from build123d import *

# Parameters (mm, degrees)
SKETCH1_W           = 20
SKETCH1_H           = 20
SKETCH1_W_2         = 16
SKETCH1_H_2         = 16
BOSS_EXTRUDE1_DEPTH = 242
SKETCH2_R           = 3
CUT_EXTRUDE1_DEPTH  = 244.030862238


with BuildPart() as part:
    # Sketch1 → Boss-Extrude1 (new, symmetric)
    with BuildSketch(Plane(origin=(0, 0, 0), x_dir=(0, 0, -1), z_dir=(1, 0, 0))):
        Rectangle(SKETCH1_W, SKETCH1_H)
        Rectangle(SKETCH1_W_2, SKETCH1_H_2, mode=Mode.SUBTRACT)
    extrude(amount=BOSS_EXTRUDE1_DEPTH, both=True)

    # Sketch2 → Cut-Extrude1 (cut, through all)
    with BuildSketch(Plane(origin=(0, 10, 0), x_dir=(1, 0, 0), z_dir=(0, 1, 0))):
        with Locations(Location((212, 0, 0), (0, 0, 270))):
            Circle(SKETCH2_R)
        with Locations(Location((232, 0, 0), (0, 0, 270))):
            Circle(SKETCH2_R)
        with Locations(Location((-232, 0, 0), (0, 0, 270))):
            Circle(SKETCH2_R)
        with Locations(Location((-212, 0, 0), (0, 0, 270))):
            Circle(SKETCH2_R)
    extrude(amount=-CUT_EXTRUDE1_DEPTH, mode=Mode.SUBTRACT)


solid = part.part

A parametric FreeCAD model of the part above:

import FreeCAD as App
import Part
import Sketcher
from FreeCAD import Vector
Q = App.Units.Quantity


def add_polygon(sketch, points):
    """Adds a closed chain of lines whose ends are joined by coincident constraints."""
    first, n = sketch.GeometryCount, len(points)
    for a, b in zip(points, points[1:] + points[:1]):
        sketch.addGeometry(Part.LineSegment(App.Vector(*a, 0), App.Vector(*b, 0)), False)
    for i in range(n):
        sketch.addConstraint(Sketcher.Constraint("Coincident", first + i, 2, first + (i + 1) % n, 1))

doc = App.newDocument("Part")
body = doc.addObject("PartDesign::Body", "Body")

sketch1 = doc.addObject("Sketcher::SketchObject", "Sketch")
body.addObject(sketch1)
sketch1.AttachmentSupport = (doc.YZ_Plane, [""])
sketch1.MapMode = "FlatFace"
add_polygon(sketch1, [(10, 10), (-10, 10), (-10, -10), (10, -10)])
add_polygon(sketch1, [(-8, -8), (-8, 8), (8, 8), (8, -8)])
sketch1.addConstraint(Sketcher.Constraint("Horizontal", 0))
sketch1.addConstraint(Sketcher.Constraint("Vertical", 1))
sketch1.addConstraint(Sketcher.Constraint("Horizontal", 2))
sketch1.addConstraint(Sketcher.Constraint("Vertical", 3))
sketch1.addConstraint(Sketcher.Constraint("Vertical", 4))
sketch1.addConstraint(Sketcher.Constraint("Horizontal", 5))
sketch1.addConstraint(Sketcher.Constraint("Vertical", 6))
sketch1.addConstraint(Sketcher.Constraint("Horizontal", 7))
sketch1.addConstraint(Sketcher.Constraint("Symmetric", 0, 2, 2, 2, -1, 1))
sketch1.addConstraint(Sketcher.Constraint("Symmetric", 4, 2, 6, 2, -1, 1))
sketch1.addConstraint(Sketcher.Constraint("Equal", 2, 1))
sketch1.addConstraint(Sketcher.Constraint("Equal", 7, 4))
sketch1.addConstraint(Sketcher.Constraint("DistanceX", 0, 2, 0, 1, Q("20 mm")))
sketch1.addConstraint(Sketcher.Constraint("DistanceX", 5, 1, 5, 2, Q("16 mm")))
pad1 = doc.addObject("PartDesign::Pad", "Pad")
body.addObject(pad1)
pad1.Profile = sketch1
pad1.Length = 484
pad1.Midplane = True

sketch2 = doc.addObject("Sketcher::SketchObject", "Sketch001")
body.addObject(sketch2)
sketch2.AttachmentSupport = (doc.XZ_Plane, [""])
sketch2.MapMode = "FlatFace"
sketch2.AttachmentOffset = App.Placement(Vector(0, 0, -10), App.Rotation())
sketch2.addGeometry(Part.Circle(Vector(212, 0, 0), Vector(0, 0, 1), 3), False)
sketch2.addGeometry(Part.Circle(Vector(232, 0, 0), Vector(0, 0, 1), 3), False)
sketch2.addGeometry(Part.Circle(Vector(-232, 0, 0), Vector(0, 0, 1), 3), False)
sketch2.addGeometry(Part.Circle(Vector(-212, 0, 0), Vector(0, 0, 1), 3), False)
sketch2.addConstraint(Sketcher.Constraint("Equal", 0, 1))
sketch2.addConstraint(Sketcher.Constraint("Equal", 1, 2))
sketch2.addConstraint(Sketcher.Constraint("Equal", 2, 3))
sketch2.addConstraint(Sketcher.Constraint("Symmetric", 1, 3, 2, 3, -1, 1))
sketch2.addConstraint(Sketcher.Constraint("Symmetric", 0, 3, 3, 3, -1, 1))
sketch2.addConstraint(Sketcher.Constraint("PointOnObject", 0, 3, -1))
sketch2.addConstraint(Sketcher.Constraint("PointOnObject", 1, 3, -1))
sketch2.addConstraint(Sketcher.Constraint("Diameter", 0, Q("6 mm")))
sketch2.addConstraint(Sketcher.Constraint("DistanceX", -1, 1, 0, 3, Q("212 mm")))
sketch2.addConstraint(Sketcher.Constraint("DistanceX", -1, 1, 1, 3, Q("232 mm")))
pocket1 = doc.addObject("PartDesign::Pocket", "Pocket")
body.addObject(pocket1)
pocket1.Profile = sketch2
pocket1.Type = "ThroughAll"
pocket1.Reversed = True

doc.recompute()
